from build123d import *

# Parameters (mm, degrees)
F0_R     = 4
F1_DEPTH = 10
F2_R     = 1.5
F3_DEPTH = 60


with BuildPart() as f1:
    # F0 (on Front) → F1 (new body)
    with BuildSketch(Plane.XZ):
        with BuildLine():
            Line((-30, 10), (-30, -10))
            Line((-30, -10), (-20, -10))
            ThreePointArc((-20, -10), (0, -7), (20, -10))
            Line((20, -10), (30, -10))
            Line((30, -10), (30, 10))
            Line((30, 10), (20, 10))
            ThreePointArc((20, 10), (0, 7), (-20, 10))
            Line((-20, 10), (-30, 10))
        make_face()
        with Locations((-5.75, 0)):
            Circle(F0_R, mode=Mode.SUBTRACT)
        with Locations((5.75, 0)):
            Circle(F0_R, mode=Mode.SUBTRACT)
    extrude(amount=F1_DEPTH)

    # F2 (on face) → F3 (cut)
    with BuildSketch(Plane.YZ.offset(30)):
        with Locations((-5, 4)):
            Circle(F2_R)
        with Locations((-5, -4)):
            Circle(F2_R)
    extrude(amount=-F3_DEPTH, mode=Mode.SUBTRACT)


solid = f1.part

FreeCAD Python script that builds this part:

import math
import FreeCAD as App
import Part
import Sketcher

doc = App.newDocument("Part")
body = doc.addObject("PartDesign::Body", "Body")

# Sketch on XZ plane
sketch1 = body.newObject("Sketcher::SketchObject", "Sketch")
sketch1.AttachmentSupport = (doc.getObject("XZ_Plane"), [""])
sketch1.MapMode = "FlatFace"
sketch1.addGeometry([
    Part.LineSegment(App.Vector(-30, 10, 0), App.Vector(-30, -10, 0)),  # 0
    Part.LineSegment(App.Vector(-30, -10, 0), App.Vector(-20, -10, 0)),  # 1
    Part.ArcOfCircle(Part.Circle(App.Vector(0, -75.2, 0), App.Vector(0, 0, 1), 68.2), math.radians(73), math.radians(107)),  # 2
    Part.LineSegment(App.Vector(20, -10, 0), App.Vector(30, -10, 0)),  # 3
    Part.LineSegment(App.Vector(30, -10, 0), App.Vector(30, 10, 0)),  # 4
    Part.LineSegment(App.Vector(30, 10, 0), App.Vector(20, 10, 0)),  # 5
    Part.ArcOfCircle(Part.Circle(App.Vector(0, 75.2, 0), App.Vector(0, 0, 1), 68.2), math.radians(-107), math.radians(-73)),  # 6
    Part.LineSegment(App.Vector(-20, 10, 0), App.Vector(-30, 10, 0)),  # 7
    Part.Circle(App.Vector(-5.8, 0, 0), App.Vector(0, 0, 1), 4),  # 8
    Part.Circle(App.Vector(5.8, 0, 0), App.Vector(0, 0, 1), 4),  # 9
], False)
sketch1.addConstraint([
    Sketcher.Constraint("Coincident", 0, 2, 1, 1),
    Sketcher.Constraint("Coincident", 1, 2, 2, 2),
    Sketcher.Constraint("Coincident", 2, 1, 3, 1),
    Sketcher.Constraint("Coincident", 3, 2, 4, 1),
    Sketcher.Constraint("Coincident", 4, 2, 5, 1),
    Sketcher.Constraint("Coincident", 5, 2, 6, 2),
    Sketcher.Constraint("Coincident", 6, 1, 7, 1),
    Sketcher.Constraint("Coincident", 7, 2, 0, 1),
    Sketcher.Constraint("Vertical", 0),
    Sketcher.Constraint("Horizontal", 1),
    Sketcher.Constraint("Horizontal", 3),
    Sketcher.Constraint("Vertical", 4),
    Sketcher.Constraint("Horizontal", 5),
    Sketcher.Constraint("Horizontal", 7),
    Sketcher.Constraint("Equal", 2, 6),
    Sketcher.Constraint("Equal", 8, 9),
    Sketcher.Constraint("Symmetric", 2, 3, 6, 3, -1, 1),
    Sketcher.Constraint("Symmetric", 8, 3, 9, 3, -1, 1),
    Sketcher.Constraint("Symmetric", 0, 2, 4, 2, -1, 1),
    Sketcher.Constraint("Symmetric", 1, 2, 2, 1, -2),
    Sketcher.Constraint("PointOnObject", 8, 3, -1),
    Sketcher.Constraint("Horizontal", 5, 2, 6, 1),
    Sketcher.Constraint("Diameter", 8, 8.0),
    Sketcher.Constraint("DistanceX", 1, 1, 1, 2, 10.0),
    Sketcher.Constraint("DistanceY", 0, 2, 0, 1, 20.0),
    Sketcher.Constraint("DistanceX", 0, 2, -1, 1, 30.0),
    Sketcher.Constraint("DistanceX", 8, 3, 9, 3, 11.5),
    Sketcher.Constraint("Radius", 2, 68.166667),
])
pad1 = body.newObject("PartDesign::Pad", "Pad")
pad1.Profile = sketch1
pad1.Length = 10

# Sketch on YZ plane
sketch2 = body.newObject("Sketcher::SketchObject", "Sketch001")
sketch2.AttachmentSupport = (doc.getObject("YZ_Plane"), [""])
sketch2.MapMode = "FlatFace"
sketch2.AttachmentOffset = App.Placement(App.Vector(0, 0, 30), App.Rotation())
sketch2.addGeometry([
    Part.Circle(App.Vector(-5, 4, 0), App.Vector(0, 0, 1), 1.5),
    Part.Circle(App.Vector(-5, -4, 0), App.Vector(0, 0, 1), 1.5),
], False)
sketch2.addConstraint([
    Sketcher.Constraint("Equal", 0, 1),
    Sketcher.Constraint("Symmetric", 0, 3, 1, 3, -1),
    Sketcher.Constraint("Diameter", 0, 3.0),
    Sketcher.Constraint("DistanceX", 0, 3, -1, 1, 5.0),
    Sketcher.Constraint("DistanceY", -1, 1, 0, 3, 4.0),
])
pocket1 = body.newObject("PartDesign::Pocket", "Pocket")
pocket1.Profile = sketch2
pocket1.Length = 60

doc.recompute()
